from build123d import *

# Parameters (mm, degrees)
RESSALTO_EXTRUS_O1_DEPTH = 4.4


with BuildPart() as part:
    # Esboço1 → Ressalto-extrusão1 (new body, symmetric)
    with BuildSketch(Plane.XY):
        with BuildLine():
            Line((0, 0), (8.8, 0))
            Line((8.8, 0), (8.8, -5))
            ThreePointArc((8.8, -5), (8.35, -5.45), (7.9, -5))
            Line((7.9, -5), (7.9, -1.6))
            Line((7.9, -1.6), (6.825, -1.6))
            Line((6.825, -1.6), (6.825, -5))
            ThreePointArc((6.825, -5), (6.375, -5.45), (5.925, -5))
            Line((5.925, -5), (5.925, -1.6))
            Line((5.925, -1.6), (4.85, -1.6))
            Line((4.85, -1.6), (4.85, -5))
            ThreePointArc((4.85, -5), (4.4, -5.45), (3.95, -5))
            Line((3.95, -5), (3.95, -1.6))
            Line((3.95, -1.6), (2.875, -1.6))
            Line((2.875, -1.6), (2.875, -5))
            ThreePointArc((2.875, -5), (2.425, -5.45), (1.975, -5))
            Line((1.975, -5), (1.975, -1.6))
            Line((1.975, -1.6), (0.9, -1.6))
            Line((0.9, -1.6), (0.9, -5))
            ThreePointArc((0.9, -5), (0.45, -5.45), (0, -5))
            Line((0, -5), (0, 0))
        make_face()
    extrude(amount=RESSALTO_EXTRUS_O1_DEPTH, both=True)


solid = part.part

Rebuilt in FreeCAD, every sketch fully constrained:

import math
import FreeCAD as App
import Part
import Sketcher
Q = App.Units.Quantity

doc = App.newDocument("Part")
body = doc.addObject("PartDesign::Body", "Body")

# Sketch on XY plane
sketch1 = body.newObject("Sketcher::SketchObject", "Sketch")
sketch1.AttachmentSupport = (doc.getObject("XY_Plane"), [""])
sketch1.MapMode = "FlatFace"
sketch1.addGeometry(Part.LineSegment(App.Vector(8.8, 0, 0), App.Vector(0, 0, 0)), False)
sketch1.addGeometry(Part.LineSegment(App.Vector(0, 0, 0), App.Vector(0, -5, 0)), False)
sketch1.addGeometry(Part.ArcOfCircle(Part.Circle(App.Vector(0.45, -5, 0), App.Vector(0, 0, 1), 0.45), math.radians(180), math.radians(360)), False)
sketch1.addGeometry(Part.LineSegment(App.Vector(0.9, -5, 0), App.Vector(0.9, -1.6, 0)), False)
sketch1.addGeometry(Part.LineSegment(App.Vector(0.9, -1.6, 0), App.Vector(1.98, -1.6, 0)), False)
sketch1.addGeometry(Part.LineSegment(App.Vector(1.98, -1.6, 0), App.Vector(1.98, -5, 0)), False)
sketch1.addGeometry(Part.ArcOfCircle(Part.Circle(App.Vector(2.42, -5, 0), App.Vector(0, 0, 1), 0.45), math.radians(180), math.radians(360)), False)
sketch1.addGeometry(Part.LineSegment(App.Vector(2.88, -5, 0), App.Vector(2.88, -1.6, 0)), False)
sketch1.addGeometry(Part.LineSegment(App.Vector(2.88, -1.6, 0), App.Vector(3.95, -1.6, 0)), False)
sketch1.addGeometry(Part.LineSegment(App.Vector(3.95, -1.6, 0), App.Vector(3.95, -5, 0)), False)
sketch1.addGeometry(Part.ArcOfCircle(Part.Circle(App.Vector(4.4, -5, 0), App.Vector(0, 0, 1), 0.45), math.radians(180), math.radians(360)), False)
sketch1.addGeometry(Part.LineSegment(App.Vector(4.85, -5, 0), App.Vector(4.85, -1.6, 0)), False)
sketch1.addGeometry(Part.LineSegment(App.Vector(4.85, -1.6, 0), App.Vector(5.92, -1.6, 0)), False)
sketch1.addGeometry(Part.LineSegment(App.Vector(5.92, -1.6, 0), App.Vector(5.92, -5, 0)), False)
sketch1.addGeometry(Part.ArcOfCircle(Part.Circle(App.Vector(6.38, -5, 0), App.Vector(0, 0, 1), 0.45), math.radians(180), math.radians(360)), False)
sketch1.addGeometry(Part.LineSegment(App.Vector(6.83, -5, 0), App.Vector(6.83, -1.6, 0)), False)
sketch1.addGeometry(Part.LineSegment(App.Vector(6.83, -1.6, 0), App.Vector(7.9, -1.6, 0)), False)
sketch1.addGeometry(Part.LineSegment(App.Vector(7.9, -1.6, 0), App.Vector(7.9, -5, 0)), False)
sketch1.addGeometry(Part.ArcOfCircle(Part.Circle(App.Vector(8.35, -5, 0), App.Vector(0, 0, 1), 0.45), math.radians(180), math.radians(360)), False)
sketch1.addGeometry(Part.LineSegment(App.Vector(8.8, -5, 0), App.Vector(8.8, 0, 0)), False)
sketch1.addConstraint(Sketcher.Constraint("Coincident", 0, 2, 1, 1))
sketch1.addConstraint(Sketcher.Constraint("Tangent", 1, 2, 2, 1))
sketch1.addConstraint(Sketcher.Constraint("Tangent", 2, 2, 3, 1))
sketch1.addConstraint(Sketcher.Constraint("Coincident", 3, 2, 4, 1))
sketch1.addConstraint(Sketcher.Constraint("Coincident", 4, 2, 5, 1))
sketch1.addConstraint(Sketcher.Constraint("Tangent", 5, 2, 6, 1))
sketch1.addConstraint(Sketcher.Constraint("Tangent", 6, 2, 7, 1))
sketch1.addConstraint(Sketcher.Constraint("Coincident", 7, 2, 8, 1))
sketch1.addConstraint(Sketcher.Constraint("Coincident", 8, 2, 9, 1))
sketch1.addConstraint(Sketcher.Constraint("Tangent", 9, 2, 10, 1))
sketch1.addConstraint(Sketcher.Constraint("Tangent", 10, 2, 11, 1))
sketch1.addConstraint(Sketcher.Constraint("Coincident", 11, 2, 12, 1))
sketch1.addConstraint(Sketcher.Constraint("Coincident", 12, 2, 13, 1))
sketch1.addConstraint(Sketcher.Constraint("Tangent", 13, 2, 14, 1))
sketch1.addConstraint(Sketcher.Constraint("Tangent", 14, 2, 15, 1))
sketch1.addConstraint(Sketcher.Constraint("Coincident", 15, 2, 16, 1))
sketch1.addConstraint(Sketcher.Constraint("Coincident", 16, 2, 17, 1))
sketch1.addConstraint(Sketcher.Constraint("Tangent", 17, 2, 18, 1))
sketch1.addConstraint(Sketcher.Constraint("Tangent", 18, 2, 19, 1))
sketch1.addConstraint(Sketcher.Constraint("Coincident", 19, 2, 0, 1))
sketch1.addConstraint(Sketcher.Constraint("Horizontal", 0))
sketch1.addConstraint(Sketcher.Constraint("Vertical", 1))
sketch1.addConstraint(Sketcher.Constraint("Vertical", 3))
sketch1.addConstraint(Sketcher.Constraint("Horizontal", 4))
sketch1.addConstraint(Sketcher.Constraint("Vertical", 5))
sketch1.addConstraint(Sketcher.Constraint("Vertical", 7))
sketch1.addConstraint(Sketcher.Constraint("Horizontal", 8))
sketch1.addConstraint(Sketcher.Constraint("Vertical", 9))
sketch1.addConstraint(Sketcher.Constraint("Vertical", 11))
sketch1.addConstraint(Sketcher.Constraint("Horizontal", 12))
sketch1.addConstraint(Sketcher.Constraint("Vertical", 13))
sketch1.addConstraint(Sketcher.Constraint("Vertical", 15))
sketch1.addConstraint(Sketcher.Constraint("Horizontal", 16))
sketch1.addConstraint(Sketcher.Constraint("Vertical", 17))
sketch1.addConstraint(Sketcher.Constraint("Vertical", 19))
sketch1.addConstraint(Sketcher.Constraint("Coincident", 0, 2, -1, 1))
sketch1.addConstraint(Sketcher.Constraint("Equal", 2, 6))
sketch1.addConstraint(Sketcher.Constraint("Equal", 6, 10))
sketch1.addConstraint(Sketcher.Constraint("Equal", 10, 14))
sketch1.addConstraint(Sketcher.Constraint("Equal", 14, 18))
sketch1.addConstraint(Sketcher.Constraint("Horizontal", 2, 3, 6, 3))
sketch1.addConstraint(Sketcher.Constraint("Horizontal", 6, 3, 10, 3))
sketch1.addConstraint(Sketcher.Constraint("Horizontal", 10, 3, 14, 3))
sketch1.addConstraint(Sketcher.Constraint("Horizontal", 14, 3, 18, 3))
sketch1.addConstraint(Sketcher.Constraint("Horizontal", 4, 2, 7, 2))
sketch1.addConstraint(Sketcher.Constraint("Horizontal", 8, 2, 11, 2))
sketch1.addConstraint(Sketcher.Constraint("Horizontal", 12, 2, 15, 2))
sketch1.addConstraint(Sketcher.Constraint("Equal", 4, 8))
sketch1.addConstraint(Sketcher.Constraint("Equal", 8, 12))
sketch1.addConstraint(Sketcher.Constraint("Equal", 12, 16))
sketch1.addConstraint(Sketcher.Constraint("DistanceY", 1, 2, 1, 1, Q("5 mm")))
sketch1.addConstraint(Sketcher.Constraint("Radius", 2, Q("0.45 mm")))
sketch1.addConstraint(Sketcher.Constraint("DistanceX", 0, 2, 0, 1, Q("8.8 mm")))
sketch1.addConstraint(Sketcher.Constraint("DistanceY", 3, 1, 3, 2, Q("3.4 mm")))
pad1 = body.newObject("PartDesign::Pad", "Pad")
pad1.Profile = sketch1
pad1.Length = 8.8
pad1.Midplane = True

doc.recompute()
